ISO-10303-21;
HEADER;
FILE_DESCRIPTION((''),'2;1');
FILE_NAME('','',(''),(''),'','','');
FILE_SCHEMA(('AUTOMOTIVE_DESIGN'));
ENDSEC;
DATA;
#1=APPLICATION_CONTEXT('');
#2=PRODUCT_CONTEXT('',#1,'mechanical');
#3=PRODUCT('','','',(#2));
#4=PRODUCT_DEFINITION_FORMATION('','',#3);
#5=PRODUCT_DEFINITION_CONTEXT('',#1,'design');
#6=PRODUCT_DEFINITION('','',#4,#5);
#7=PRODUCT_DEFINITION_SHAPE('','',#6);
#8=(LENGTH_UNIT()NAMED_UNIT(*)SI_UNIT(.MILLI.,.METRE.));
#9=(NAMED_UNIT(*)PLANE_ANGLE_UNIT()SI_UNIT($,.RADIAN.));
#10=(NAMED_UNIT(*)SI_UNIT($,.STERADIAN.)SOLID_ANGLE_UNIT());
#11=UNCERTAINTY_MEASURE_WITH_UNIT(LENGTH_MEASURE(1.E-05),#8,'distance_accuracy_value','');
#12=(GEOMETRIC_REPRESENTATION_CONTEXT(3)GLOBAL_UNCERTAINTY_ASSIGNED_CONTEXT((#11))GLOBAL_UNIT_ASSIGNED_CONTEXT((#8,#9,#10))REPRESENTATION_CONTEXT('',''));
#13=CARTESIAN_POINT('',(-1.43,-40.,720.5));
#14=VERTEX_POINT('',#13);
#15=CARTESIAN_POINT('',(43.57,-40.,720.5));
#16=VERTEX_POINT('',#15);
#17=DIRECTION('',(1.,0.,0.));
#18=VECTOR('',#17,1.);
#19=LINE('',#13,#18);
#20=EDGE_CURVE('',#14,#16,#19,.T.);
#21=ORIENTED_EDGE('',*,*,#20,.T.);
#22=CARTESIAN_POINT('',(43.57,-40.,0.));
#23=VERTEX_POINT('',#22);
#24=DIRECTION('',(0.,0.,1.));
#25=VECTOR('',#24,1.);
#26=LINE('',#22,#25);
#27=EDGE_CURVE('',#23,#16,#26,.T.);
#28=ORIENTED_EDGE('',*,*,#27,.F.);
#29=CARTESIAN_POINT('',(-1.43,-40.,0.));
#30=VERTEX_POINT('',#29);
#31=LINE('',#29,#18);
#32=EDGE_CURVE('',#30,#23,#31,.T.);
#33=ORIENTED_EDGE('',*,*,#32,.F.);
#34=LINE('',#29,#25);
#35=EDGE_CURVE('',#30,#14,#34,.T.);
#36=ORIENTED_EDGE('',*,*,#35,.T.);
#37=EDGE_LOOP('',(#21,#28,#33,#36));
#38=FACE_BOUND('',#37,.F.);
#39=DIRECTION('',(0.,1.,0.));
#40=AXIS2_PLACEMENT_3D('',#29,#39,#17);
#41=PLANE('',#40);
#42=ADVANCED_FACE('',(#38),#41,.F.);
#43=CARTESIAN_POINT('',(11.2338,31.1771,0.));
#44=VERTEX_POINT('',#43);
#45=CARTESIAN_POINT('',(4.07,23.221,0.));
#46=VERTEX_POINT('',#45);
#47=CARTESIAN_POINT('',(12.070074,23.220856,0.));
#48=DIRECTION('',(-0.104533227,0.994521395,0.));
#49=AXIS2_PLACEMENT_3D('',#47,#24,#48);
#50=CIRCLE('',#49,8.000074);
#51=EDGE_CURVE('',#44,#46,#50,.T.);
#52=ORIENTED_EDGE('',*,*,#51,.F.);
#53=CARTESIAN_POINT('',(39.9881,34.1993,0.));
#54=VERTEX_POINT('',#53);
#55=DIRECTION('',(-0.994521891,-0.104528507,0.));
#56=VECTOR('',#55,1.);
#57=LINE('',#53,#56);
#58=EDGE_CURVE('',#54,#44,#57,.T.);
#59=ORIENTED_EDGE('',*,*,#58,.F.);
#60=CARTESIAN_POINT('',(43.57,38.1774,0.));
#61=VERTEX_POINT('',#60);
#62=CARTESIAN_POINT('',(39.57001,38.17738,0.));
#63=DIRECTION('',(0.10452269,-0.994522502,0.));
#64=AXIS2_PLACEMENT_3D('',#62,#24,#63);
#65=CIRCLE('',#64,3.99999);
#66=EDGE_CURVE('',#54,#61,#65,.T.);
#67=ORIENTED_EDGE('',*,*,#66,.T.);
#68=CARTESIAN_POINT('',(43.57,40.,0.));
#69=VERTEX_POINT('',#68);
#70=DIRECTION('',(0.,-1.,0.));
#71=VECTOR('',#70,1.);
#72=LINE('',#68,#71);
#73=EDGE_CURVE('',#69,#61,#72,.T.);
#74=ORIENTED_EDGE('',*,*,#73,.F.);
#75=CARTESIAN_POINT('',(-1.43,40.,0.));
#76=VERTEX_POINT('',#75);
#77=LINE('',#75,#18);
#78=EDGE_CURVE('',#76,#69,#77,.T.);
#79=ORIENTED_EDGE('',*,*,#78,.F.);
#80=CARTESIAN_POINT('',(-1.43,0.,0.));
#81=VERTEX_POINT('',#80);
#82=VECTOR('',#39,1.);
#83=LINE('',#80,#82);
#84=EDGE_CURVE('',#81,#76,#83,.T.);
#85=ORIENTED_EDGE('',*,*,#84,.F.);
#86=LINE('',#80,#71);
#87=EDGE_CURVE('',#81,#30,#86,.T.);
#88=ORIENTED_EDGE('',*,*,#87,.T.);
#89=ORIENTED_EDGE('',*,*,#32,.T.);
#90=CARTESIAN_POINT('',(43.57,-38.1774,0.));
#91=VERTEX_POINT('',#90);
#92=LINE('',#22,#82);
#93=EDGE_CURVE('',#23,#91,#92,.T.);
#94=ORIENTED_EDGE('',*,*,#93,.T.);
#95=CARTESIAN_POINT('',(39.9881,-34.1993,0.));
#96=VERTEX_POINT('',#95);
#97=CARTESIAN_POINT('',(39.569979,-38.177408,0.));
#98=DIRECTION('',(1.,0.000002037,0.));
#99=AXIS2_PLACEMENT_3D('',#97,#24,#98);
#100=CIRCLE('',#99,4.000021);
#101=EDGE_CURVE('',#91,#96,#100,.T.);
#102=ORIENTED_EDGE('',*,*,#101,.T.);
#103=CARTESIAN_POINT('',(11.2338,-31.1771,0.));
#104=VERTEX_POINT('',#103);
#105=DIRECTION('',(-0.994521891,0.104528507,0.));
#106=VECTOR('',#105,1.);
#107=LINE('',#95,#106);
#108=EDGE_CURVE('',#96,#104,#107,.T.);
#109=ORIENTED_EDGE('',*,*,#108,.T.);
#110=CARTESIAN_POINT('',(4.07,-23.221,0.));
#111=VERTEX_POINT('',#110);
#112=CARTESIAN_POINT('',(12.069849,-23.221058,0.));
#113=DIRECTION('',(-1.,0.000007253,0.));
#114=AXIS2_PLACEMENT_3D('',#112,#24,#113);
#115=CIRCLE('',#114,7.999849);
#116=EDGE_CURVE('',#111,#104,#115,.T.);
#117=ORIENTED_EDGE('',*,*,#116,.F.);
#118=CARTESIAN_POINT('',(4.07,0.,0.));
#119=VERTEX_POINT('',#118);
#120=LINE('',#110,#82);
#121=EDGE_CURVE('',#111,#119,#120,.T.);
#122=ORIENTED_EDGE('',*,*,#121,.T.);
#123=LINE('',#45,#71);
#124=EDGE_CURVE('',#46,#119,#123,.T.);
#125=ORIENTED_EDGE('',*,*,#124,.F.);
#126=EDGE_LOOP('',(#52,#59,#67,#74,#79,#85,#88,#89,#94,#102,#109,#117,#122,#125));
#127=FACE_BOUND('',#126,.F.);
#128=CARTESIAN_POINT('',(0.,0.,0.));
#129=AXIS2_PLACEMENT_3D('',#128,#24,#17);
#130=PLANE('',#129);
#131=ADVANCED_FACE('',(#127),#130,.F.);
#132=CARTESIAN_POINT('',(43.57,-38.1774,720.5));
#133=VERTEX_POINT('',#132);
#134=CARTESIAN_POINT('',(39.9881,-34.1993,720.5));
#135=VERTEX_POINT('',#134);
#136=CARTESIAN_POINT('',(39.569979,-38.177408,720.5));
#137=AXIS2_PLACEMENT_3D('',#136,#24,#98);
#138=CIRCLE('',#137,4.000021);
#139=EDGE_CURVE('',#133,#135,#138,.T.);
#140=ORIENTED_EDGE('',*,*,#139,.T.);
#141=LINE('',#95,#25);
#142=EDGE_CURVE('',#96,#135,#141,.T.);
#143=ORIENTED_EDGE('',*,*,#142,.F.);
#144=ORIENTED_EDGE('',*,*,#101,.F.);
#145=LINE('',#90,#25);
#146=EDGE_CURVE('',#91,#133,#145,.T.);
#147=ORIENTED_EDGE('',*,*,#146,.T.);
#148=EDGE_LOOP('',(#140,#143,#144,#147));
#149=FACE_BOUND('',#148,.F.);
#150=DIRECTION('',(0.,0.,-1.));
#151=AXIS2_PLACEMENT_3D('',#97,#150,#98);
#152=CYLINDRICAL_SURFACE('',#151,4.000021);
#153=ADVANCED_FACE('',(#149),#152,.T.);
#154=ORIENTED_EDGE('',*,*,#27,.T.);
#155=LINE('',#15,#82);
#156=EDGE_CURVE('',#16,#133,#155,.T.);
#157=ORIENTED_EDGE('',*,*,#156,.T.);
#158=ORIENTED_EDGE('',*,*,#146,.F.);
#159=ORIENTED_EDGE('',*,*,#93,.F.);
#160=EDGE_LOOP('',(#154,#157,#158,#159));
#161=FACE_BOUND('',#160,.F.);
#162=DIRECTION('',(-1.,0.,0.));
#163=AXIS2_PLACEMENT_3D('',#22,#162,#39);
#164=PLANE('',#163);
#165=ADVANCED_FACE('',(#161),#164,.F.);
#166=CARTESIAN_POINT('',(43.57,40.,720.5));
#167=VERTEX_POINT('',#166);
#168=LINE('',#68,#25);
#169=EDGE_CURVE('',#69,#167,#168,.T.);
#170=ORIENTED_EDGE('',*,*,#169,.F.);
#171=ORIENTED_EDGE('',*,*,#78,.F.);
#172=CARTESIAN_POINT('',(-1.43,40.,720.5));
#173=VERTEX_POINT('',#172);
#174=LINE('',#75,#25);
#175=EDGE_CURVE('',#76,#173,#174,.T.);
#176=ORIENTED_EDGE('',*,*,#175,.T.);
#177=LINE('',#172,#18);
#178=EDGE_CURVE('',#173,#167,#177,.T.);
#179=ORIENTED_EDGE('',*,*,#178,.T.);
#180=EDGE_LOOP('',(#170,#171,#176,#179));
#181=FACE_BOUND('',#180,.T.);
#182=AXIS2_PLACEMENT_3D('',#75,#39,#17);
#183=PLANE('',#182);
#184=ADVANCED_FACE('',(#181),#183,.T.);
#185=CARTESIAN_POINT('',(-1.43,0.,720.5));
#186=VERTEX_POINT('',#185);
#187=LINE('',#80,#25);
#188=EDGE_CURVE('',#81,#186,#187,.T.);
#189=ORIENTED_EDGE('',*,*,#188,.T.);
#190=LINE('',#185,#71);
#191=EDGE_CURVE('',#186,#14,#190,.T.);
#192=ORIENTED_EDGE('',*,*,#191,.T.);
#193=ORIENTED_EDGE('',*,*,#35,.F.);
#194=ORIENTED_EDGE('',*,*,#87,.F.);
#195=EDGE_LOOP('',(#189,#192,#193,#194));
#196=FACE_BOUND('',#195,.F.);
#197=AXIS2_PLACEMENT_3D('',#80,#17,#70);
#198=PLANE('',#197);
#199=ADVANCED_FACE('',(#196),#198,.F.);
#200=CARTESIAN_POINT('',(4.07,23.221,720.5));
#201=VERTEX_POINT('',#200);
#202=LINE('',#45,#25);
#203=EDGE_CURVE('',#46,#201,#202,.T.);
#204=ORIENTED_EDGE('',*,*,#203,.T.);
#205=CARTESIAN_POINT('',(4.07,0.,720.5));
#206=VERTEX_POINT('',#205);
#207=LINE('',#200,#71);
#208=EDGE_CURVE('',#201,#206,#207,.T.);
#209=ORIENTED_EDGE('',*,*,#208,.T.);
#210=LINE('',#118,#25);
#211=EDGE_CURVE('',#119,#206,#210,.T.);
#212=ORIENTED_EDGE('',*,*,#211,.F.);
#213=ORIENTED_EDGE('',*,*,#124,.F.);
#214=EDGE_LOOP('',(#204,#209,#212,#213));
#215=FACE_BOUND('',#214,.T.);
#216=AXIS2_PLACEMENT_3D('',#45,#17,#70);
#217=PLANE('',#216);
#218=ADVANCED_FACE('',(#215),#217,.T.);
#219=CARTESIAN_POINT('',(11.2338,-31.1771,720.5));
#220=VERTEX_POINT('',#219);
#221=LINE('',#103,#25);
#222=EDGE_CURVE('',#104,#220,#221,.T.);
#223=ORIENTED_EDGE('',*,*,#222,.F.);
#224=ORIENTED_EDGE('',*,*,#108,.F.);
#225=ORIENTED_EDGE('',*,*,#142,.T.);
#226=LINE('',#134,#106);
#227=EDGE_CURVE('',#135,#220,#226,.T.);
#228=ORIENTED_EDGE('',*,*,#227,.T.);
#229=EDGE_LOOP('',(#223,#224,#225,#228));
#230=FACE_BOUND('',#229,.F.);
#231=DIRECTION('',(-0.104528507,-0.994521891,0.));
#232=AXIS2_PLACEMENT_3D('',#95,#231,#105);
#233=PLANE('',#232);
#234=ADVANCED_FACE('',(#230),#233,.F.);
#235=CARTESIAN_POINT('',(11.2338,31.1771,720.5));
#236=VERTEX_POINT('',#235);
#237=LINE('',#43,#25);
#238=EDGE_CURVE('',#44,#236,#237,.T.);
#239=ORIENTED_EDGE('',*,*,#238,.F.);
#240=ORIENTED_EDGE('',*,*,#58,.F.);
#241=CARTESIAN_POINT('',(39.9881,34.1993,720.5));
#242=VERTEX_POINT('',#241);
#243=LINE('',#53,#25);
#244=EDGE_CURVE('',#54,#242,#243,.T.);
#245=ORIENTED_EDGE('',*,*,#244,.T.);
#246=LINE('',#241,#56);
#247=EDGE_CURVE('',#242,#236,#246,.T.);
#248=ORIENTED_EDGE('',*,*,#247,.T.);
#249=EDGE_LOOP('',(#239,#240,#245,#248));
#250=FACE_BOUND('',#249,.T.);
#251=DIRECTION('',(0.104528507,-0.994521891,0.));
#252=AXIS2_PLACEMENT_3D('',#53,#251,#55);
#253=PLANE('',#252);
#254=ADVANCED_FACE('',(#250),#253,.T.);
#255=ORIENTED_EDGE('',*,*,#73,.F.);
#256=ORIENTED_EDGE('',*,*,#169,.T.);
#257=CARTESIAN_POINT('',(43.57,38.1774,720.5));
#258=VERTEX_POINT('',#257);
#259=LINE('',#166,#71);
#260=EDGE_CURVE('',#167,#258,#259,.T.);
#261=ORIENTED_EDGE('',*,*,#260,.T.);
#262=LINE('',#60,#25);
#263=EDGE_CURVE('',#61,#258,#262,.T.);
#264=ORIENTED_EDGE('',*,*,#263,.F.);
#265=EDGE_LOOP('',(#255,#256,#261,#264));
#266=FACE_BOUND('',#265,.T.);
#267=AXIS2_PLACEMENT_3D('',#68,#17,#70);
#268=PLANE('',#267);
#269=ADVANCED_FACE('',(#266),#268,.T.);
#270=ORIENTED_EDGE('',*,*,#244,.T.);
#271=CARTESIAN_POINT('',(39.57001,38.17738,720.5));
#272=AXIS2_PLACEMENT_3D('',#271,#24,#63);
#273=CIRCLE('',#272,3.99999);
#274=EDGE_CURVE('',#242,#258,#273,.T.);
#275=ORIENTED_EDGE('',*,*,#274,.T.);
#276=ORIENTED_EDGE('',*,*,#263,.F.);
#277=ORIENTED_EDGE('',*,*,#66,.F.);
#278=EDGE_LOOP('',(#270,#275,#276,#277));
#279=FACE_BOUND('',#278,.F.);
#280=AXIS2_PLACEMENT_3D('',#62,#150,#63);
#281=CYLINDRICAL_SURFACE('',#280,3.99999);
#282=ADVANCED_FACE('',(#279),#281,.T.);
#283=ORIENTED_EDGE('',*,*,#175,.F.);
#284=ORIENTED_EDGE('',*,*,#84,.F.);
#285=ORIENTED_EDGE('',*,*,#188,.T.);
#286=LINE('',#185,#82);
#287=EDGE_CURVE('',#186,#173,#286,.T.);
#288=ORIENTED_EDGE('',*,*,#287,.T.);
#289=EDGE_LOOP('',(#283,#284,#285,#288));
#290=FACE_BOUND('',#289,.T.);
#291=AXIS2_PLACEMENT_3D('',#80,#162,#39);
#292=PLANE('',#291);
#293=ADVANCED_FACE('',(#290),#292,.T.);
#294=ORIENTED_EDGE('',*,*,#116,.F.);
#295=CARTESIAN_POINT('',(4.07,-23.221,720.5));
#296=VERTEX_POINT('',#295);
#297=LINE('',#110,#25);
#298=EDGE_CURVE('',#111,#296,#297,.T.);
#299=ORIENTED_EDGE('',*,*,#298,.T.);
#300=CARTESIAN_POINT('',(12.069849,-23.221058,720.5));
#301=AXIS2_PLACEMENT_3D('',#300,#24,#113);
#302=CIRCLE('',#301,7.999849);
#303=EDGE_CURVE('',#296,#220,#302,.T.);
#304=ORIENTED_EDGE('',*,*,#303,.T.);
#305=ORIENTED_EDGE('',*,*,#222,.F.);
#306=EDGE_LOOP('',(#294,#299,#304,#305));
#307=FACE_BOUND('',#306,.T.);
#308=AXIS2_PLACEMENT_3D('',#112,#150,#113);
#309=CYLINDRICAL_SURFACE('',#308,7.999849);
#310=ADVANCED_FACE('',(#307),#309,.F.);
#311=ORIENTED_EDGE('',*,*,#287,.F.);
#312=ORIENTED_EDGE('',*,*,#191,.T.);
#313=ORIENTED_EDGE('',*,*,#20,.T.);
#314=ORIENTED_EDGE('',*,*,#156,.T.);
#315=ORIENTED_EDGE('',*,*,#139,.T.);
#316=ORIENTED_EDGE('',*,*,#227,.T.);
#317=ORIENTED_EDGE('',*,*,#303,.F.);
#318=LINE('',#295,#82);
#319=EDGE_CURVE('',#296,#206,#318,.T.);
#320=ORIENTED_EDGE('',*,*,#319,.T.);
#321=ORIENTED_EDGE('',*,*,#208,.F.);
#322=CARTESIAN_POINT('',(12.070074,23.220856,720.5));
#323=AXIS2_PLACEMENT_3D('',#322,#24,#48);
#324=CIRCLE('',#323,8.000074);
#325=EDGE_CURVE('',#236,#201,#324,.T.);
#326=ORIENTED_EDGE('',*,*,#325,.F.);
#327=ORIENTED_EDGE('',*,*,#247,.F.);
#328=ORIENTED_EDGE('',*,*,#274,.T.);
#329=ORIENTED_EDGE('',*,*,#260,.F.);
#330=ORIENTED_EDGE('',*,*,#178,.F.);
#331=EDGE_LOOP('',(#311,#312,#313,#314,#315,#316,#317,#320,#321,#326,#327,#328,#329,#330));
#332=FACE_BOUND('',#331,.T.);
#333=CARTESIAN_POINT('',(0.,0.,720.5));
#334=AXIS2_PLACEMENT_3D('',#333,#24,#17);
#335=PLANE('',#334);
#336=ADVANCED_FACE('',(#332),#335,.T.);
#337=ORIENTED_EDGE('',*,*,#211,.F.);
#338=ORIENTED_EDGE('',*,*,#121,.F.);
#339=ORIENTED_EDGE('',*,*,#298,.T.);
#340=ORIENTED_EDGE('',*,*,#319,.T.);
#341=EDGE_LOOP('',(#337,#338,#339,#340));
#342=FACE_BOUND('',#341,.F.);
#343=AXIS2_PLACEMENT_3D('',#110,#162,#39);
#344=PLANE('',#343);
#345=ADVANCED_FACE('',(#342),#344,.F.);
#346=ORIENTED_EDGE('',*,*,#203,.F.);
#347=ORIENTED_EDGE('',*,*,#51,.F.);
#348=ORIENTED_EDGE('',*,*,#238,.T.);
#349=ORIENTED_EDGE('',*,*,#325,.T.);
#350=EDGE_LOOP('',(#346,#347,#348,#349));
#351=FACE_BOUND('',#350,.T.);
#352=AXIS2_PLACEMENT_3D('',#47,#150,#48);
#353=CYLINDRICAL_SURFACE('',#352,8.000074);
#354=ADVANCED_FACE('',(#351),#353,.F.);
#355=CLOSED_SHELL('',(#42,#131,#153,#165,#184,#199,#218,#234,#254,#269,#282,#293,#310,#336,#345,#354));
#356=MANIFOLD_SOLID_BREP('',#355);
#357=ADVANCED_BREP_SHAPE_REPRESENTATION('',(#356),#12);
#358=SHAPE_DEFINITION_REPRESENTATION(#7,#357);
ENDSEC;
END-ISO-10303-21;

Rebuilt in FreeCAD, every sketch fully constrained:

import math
import FreeCAD as App
import Part
import Sketcher
from FreeCAD import Vector
Q = App.Units.Quantity

doc = App.newDocument("Part")
params = doc.addObject("Spreadsheet::Sheet", "Params")
for row, (alias, value) in enumerate([
    ("sketch1_radius", "4 mm"),
    ("sketch1_radius2", "8 mm"),
    ("sketch1_width", "45 mm"),
    ("pad1_length", "720.5 mm"),
], start=1):
    params.set(f"A{row}", alias)
    params.set(f"B{row}", "=" + value)
    params.setAlias(f"B{row}", alias)

body = doc.addObject("PartDesign::Body", "Body")

# Sketch on XY plane
sketch1 = body.newObject("Sketcher::SketchObject", "Sketch")
sketch1.AttachmentSupport = (doc.getObject("XY_Plane"), [""])
sketch1.MapMode = "FlatFace"
sketch1.addGeometry(Part.LineSegment(Vector(-1.43, 40, 0), Vector(-1.43, -40, 0)), False)
sketch1.addGeometry(Part.LineSegment(Vector(-1.43, -40, 0), Vector(43.57, -40, 0)), False)
sketch1.addGeometry(Part.LineSegment(Vector(43.57, -40, 0), Vector(43.57, -38.1774, 0)), False)
sketch1.addGeometry(Part.ArcOfCircle(Part.Circle(Vector(39.57, -38.1774, 0), Vector(0, 0, 1), 4), math.radians(0), math.radians(84.000216)), False)
sketch1.addGeometry(Part.LineSegment(Vector(39.9881, -34.1993, 0), Vector(11.2338, -31.1771, 0)), False)
sketch1.addGeometry(Part.ArcOfCircle(Part.Circle(Vector(12.07, -23.221, 0), Vector(0, 0, 1), 8), math.radians(180), math.radians(264.000141)), False)
sketch1.addGeometry(Part.LineSegment(Vector(4.07, -23.221, 0), Vector(4.07, 23.221, 0)), False)
sketch1.addGeometry(Part.ArcOfCircle(Part.Circle(Vector(12.07, 23.221, 0), Vector(0, 0, 1), 7.999922), math.radians(95.999859), math.radians(180)), False)
sketch1.addGeometry(Part.LineSegment(Vector(11.2338, 31.1771, 0), Vector(39.9881, 34.1993, 0)), False)
sketch1.addGeometry(Part.ArcOfCircle(Part.Circle(Vector(39.57, 38.1774, 0), Vector(0, 0, 1), 4.000011), math.radians(-84.000216), math.radians(0)), False)
sketch1.addGeometry(Part.LineSegment(Vector(43.57, 38.1774, 0), Vector(43.57, 40, 0)), False)
sketch1.addGeometry(Part.LineSegment(Vector(43.57, 40, 0), Vector(-1.43, 40, 0)), False)
sketch1.addConstraint(Sketcher.Constraint("Coincident", 0, 2, 1, 1))
sketch1.addConstraint(Sketcher.Constraint("Coincident", 1, 2, 2, 1))
sketch1.addConstraint(Sketcher.Constraint("Tangent", 2, 2, 3, 1))
sketch1.addConstraint(Sketcher.Constraint("Tangent", 3, 2, 4, 1))
sketch1.addConstraint(Sketcher.Constraint("Tangent", 4, 2, 5, 2))
sketch1.addConstraint(Sketcher.Constraint("Tangent", 5, 1, 6, 1))
sketch1.addConstraint(Sketcher.Constraint("Tangent", 6, 2, 7, 2))
sketch1.addConstraint(Sketcher.Constraint("Tangent", 7, 1, 8, 1))
sketch1.addConstraint(Sketcher.Constraint("Tangent", 8, 2, 9, 1))
sketch1.addConstraint(Sketcher.Constraint("Tangent", 9, 2, 10, 1))
sketch1.addConstraint(Sketcher.Constraint("Coincident", 10, 2, 11, 1))
sketch1.addConstraint(Sketcher.Constraint("Coincident", 11, 2, 0, 1))
sketch1.addConstraint(Sketcher.Constraint("Vertical", 0))
sketch1.addConstraint(Sketcher.Constraint("Horizontal", 1))
sketch1.addConstraint(Sketcher.Constraint("Vertical", 2))
sketch1.addConstraint(Sketcher.Constraint("Vertical", 6))
sketch1.addConstraint(Sketcher.Constraint("Vertical", 10))
sketch1.addConstraint(Sketcher.Constraint("Horizontal", 11))
sketch1.addConstraint(Sketcher.Constraint("Equal", 5, 7))
sketch1.addConstraint(Sketcher.Constraint("Equal", 3, 9))
sketch1.addConstraint(Sketcher.Constraint("Symmetric", 3, 3, 9, 3, -1))
sketch1.addConstraint(Sketcher.Constraint("Vertical", 4, 2, 7, 1))
sketch1.addConstraint(Sketcher.Constraint("Equal", 2, 10))
sketch1.addConstraint(Sketcher.Constraint("Radius", 3, Q("4 mm")))
sketch1.addConstraint(Sketcher.Constraint("Radius", 5, Q("8 mm")))
sketch1.addConstraint(Sketcher.Constraint("DistanceX", 1, 1, 1, 2, Q("45 mm")))
sketch1.addConstraint(Sketcher.Constraint("DistanceY", 0, 2, -1, 1, Q("40 mm")))
sketch1.addConstraint(Sketcher.Constraint("DistanceX", 0, 2, 5, 1, Q("5.5 mm")))
sketch1.addConstraint(Sketcher.Constraint("DistanceX", 0, 2, -1, 1, Q("1.43 mm")))
sketch1.addConstraint(Sketcher.Constraint("Angle", 4, Q("174 deg")))
sketch1.addConstraint(Sketcher.Constraint("DistanceY", 6, 1, 6, 2, Q("46.442 mm")))
sketch1.setExpression("Constraints[23]", "Params.sketch1_radius")
sketch1.setExpression("Constraints[24]", "Params.sketch1_radius2")
sketch1.setExpression("Constraints[25]", "Params.sketch1_width")
pad1 = body.newObject("PartDesign::Pad", "Pad")
pad1.Profile = sketch1
pad1.setExpression("Length", "Params.pad1_length")

doc.recompute()
